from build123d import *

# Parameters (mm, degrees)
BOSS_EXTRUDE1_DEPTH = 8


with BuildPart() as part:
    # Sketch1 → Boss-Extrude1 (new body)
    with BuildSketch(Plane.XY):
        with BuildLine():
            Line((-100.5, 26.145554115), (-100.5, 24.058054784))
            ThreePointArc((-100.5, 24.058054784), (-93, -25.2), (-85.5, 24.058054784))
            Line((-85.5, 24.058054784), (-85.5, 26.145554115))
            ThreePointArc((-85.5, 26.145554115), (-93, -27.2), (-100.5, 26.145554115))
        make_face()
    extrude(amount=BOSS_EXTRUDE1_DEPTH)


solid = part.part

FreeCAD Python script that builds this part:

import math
import FreeCAD as App
import Part
import Sketcher
from FreeCAD import Vector

doc = App.newDocument("Part")
body = doc.addObject("PartDesign::Body", "Body")

# Sketch on XY plane
sketch1 = body.newObject("Sketcher::SketchObject", "Sketch")
sketch1.AttachmentSupport = (doc.getObject("XY_Plane"), [""])
sketch1.MapMode = "FlatFace"
sketch1.addGeometry(Part.LineSegment(Vector(-100.5, 24.1, 0), Vector(-100.5, 26.1, 0)), False)
sketch1.addGeometry(Part.ArcOfCircle(Part.Circle(Vector(-93, 0, 0), Vector(0, 0, 1), 27.2), math.radians(106), math.radians(434)), False)
sketch1.addGeometry(Part.LineSegment(Vector(-85.5, 26.1, 0), Vector(-85.5, 24.1, 0)), False)
sketch1.addGeometry(Part.ArcOfCircle(Part.Circle(Vector(-93, 0, 0), Vector(0, 0, 1), 25.2), math.radians(107), math.radians(433)), False)
sketch1.addConstraint(Sketcher.Constraint("Coincident", 0, 2, 1, 1))
sketch1.addConstraint(Sketcher.Constraint("Coincident", 1, 2, 2, 1))
sketch1.addConstraint(Sketcher.Constraint("Coincident", 2, 2, 3, 2))
sketch1.addConstraint(Sketcher.Constraint("Coincident", 3, 1, 0, 1))
sketch1.addConstraint(Sketcher.Constraint("Vertical", 0))
sketch1.addConstraint(Sketcher.Constraint("Vertical", 2))
sketch1.addConstraint(Sketcher.Constraint("Coincident", 3, 3, 1, 3))
sketch1.addConstraint(Sketcher.Constraint("PointOnObject", 1, 3, -1))
sketch1.addConstraint(Sketcher.Constraint("Horizontal", 0, 2, 1, 2))
sketch1.addConstraint(Sketcher.Constraint("Radius", 1, 27.2))
sketch1.addConstraint(Sketcher.Constraint("Radius", 3, 25.2))
sketch1.addConstraint(Sketcher.Constraint("DistanceX", 1, 3, -1, 1, 93.0))
sketch1.addConstraint(Sketcher.Constraint("DistanceX", 0, 2, 1, 2, 15.0))
pad1 = body.newObject("PartDesign::Pad", "Pad")
pad1.Profile = sketch1
pad1.Length = 8

doc.recompute()
